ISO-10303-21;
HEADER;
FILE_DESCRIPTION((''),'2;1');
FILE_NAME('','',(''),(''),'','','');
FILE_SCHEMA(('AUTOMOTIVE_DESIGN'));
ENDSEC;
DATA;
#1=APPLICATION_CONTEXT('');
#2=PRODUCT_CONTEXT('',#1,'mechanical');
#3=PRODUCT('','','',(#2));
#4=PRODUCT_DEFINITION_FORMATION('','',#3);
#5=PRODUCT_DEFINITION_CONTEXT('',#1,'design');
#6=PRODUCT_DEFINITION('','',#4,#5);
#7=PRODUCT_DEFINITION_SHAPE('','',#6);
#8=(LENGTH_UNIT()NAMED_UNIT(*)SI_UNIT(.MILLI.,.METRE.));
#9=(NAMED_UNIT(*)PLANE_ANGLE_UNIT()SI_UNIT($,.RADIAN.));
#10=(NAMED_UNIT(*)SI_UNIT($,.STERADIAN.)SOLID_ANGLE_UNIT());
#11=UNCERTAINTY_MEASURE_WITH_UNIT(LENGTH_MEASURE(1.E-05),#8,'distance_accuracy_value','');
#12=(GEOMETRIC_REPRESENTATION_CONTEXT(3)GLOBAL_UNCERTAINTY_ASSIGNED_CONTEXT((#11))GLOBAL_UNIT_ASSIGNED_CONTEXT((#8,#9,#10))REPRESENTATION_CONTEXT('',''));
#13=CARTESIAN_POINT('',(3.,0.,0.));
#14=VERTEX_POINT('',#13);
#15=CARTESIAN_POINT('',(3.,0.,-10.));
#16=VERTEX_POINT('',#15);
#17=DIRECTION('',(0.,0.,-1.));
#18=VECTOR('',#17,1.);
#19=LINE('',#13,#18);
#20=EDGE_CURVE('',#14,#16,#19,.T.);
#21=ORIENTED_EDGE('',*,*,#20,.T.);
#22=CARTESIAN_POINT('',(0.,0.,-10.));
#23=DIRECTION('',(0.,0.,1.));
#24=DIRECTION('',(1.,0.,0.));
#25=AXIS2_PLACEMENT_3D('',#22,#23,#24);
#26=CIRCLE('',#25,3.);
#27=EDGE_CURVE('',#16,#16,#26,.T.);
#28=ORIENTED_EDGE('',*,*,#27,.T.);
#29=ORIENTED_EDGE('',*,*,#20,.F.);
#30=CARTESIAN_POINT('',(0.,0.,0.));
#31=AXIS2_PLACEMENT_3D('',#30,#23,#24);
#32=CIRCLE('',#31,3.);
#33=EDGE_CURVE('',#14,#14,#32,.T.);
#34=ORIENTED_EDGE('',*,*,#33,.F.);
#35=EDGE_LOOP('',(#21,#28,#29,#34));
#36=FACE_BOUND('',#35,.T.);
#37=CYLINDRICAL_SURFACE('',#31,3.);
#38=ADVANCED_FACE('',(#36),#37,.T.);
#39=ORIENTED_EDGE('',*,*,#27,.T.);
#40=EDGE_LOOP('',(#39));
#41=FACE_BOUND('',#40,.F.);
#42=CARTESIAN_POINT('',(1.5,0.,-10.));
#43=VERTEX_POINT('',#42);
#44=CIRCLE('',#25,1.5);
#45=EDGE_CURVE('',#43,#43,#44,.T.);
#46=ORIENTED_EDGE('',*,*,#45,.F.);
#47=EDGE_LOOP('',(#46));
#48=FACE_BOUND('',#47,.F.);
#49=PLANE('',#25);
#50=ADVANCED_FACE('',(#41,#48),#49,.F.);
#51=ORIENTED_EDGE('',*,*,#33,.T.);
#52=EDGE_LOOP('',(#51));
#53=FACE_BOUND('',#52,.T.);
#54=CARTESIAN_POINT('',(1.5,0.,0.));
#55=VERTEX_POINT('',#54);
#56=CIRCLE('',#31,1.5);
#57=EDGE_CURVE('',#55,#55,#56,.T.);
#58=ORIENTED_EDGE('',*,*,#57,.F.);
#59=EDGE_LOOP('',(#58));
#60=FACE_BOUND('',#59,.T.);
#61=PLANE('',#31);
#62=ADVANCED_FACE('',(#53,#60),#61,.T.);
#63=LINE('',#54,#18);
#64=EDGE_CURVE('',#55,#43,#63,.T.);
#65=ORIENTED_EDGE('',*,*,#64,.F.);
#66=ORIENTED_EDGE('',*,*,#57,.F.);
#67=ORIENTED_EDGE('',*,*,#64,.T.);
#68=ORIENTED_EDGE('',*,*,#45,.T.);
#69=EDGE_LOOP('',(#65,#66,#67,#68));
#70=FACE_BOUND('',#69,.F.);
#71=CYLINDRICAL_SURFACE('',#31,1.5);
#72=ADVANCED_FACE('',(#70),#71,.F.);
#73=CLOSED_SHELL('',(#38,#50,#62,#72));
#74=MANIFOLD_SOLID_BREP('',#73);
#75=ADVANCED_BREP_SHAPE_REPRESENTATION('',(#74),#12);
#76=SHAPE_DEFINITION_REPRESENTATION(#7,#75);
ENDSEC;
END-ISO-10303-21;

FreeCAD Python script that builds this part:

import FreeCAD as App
import Part
import Sketcher
Q = App.Units.Quantity

doc = App.newDocument("Part")
body = doc.addObject("PartDesign::Body", "Body")

sketch1 = doc.addObject("Sketcher::SketchObject", "Sketch")
body.addObject(sketch1)
sketch1.AttachmentSupport = (doc.XY_Plane, [""])
sketch1.MapMode = "FlatFace"
sketch1.addGeometry([
    Part.Circle(App.Vector(0, 0, 0), App.Vector(0, 0, 1), 3),
    Part.Circle(App.Vector(0, 0, 0), App.Vector(0, 0, 1), 1.5),
], False)
sketch1.addConstraint([
    Sketcher.Constraint("Coincident", 0, 3, -1, 1),
    Sketcher.Constraint("Coincident", 1, 3, -1, 1),
    Sketcher.Constraint("Diameter", 0, Q("6 mm")),
    Sketcher.Constraint("Diameter", 1, Q("3 mm")),
])
pad1 = doc.addObject("PartDesign::Pad", "Pad")
body.addObject(pad1)
pad1.Profile = sketch1
pad1.Length = 10
pad1.Reversed = True

doc.recompute()
